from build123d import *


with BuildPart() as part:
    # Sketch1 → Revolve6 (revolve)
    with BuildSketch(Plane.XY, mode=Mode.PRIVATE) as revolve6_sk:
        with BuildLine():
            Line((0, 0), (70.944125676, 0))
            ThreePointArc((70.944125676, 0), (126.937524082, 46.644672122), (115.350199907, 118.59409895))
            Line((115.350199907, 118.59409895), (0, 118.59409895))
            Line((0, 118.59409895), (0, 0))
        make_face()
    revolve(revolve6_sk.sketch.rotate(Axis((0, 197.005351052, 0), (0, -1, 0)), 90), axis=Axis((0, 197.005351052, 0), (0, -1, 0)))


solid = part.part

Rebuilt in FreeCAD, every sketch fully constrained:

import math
import FreeCAD as App
import Part
import Sketcher
Q = App.Units.Quantity

doc = App.newDocument("Part")
body = doc.addObject("PartDesign::Body", "Body")

# Sketch on XY plane
sketch1 = body.newObject("Sketcher::SketchObject", "Sketch")
sketch1.AttachmentSupport = (doc.getObject("XY_Plane"), [""])
sketch1.MapMode = "FlatFace"
sketch1.addGeometry(Part.LineSegment(App.Vector(0, 0, 0), App.Vector(70.944126, 0, 0)), False)
sketch1.addGeometry(Part.ArcOfCircle(Part.Circle(App.Vector(58.0136, 72.452372, 0), App.Vector(0, 0, 1), 73.597178), math.radians(-79.880998), math.radians(38.825432)), False)
sketch1.addGeometry(Part.LineSegment(App.Vector(115.3502, 118.594099, 0), App.Vector(0, 118.594099, 0)), False)
sketch1.addGeometry(Part.LineSegment(App.Vector(0, 118.594099, 0), App.Vector(0, 0, 0)), False)
sketch1.addConstraint(Sketcher.Constraint("Coincident", 0, 2, 1, 1))
sketch1.addConstraint(Sketcher.Constraint("Coincident", 1, 2, 2, 1))
sketch1.addConstraint(Sketcher.Constraint("Coincident", 2, 2, 3, 1))
sketch1.addConstraint(Sketcher.Constraint("Coincident", 3, 2, 0, 1))
sketch1.addConstraint(Sketcher.Constraint("Horizontal", 0))
sketch1.addConstraint(Sketcher.Constraint("Horizontal", 2))
sketch1.addConstraint(Sketcher.Constraint("Vertical", 3))
sketch1.addConstraint(Sketcher.Constraint("Coincident", 3, 2, -1, 1))
sketch1.addConstraint(Sketcher.Constraint("Radius", 1, Q("73.597178 mm")))
sketch1.addConstraint(Sketcher.Constraint("DistanceX", 2, 2, 2, 1, Q("115.3502 mm")))
sketch1.addConstraint(Sketcher.Constraint("DistanceY", 3, 2, 3, 1, Q("118.594099 mm")))
sketch1.addConstraint(Sketcher.Constraint("DistanceX", -1, 1, 1, 3, Q("58.0136 mm")))
revolution = body.newObject("PartDesign::Revolution", "Revolution")
revolution.Profile = sketch1
revolution.ReferenceAxis = (sketch1, ["V_Axis"])
revolution.Angle = 360

doc.recompute()
